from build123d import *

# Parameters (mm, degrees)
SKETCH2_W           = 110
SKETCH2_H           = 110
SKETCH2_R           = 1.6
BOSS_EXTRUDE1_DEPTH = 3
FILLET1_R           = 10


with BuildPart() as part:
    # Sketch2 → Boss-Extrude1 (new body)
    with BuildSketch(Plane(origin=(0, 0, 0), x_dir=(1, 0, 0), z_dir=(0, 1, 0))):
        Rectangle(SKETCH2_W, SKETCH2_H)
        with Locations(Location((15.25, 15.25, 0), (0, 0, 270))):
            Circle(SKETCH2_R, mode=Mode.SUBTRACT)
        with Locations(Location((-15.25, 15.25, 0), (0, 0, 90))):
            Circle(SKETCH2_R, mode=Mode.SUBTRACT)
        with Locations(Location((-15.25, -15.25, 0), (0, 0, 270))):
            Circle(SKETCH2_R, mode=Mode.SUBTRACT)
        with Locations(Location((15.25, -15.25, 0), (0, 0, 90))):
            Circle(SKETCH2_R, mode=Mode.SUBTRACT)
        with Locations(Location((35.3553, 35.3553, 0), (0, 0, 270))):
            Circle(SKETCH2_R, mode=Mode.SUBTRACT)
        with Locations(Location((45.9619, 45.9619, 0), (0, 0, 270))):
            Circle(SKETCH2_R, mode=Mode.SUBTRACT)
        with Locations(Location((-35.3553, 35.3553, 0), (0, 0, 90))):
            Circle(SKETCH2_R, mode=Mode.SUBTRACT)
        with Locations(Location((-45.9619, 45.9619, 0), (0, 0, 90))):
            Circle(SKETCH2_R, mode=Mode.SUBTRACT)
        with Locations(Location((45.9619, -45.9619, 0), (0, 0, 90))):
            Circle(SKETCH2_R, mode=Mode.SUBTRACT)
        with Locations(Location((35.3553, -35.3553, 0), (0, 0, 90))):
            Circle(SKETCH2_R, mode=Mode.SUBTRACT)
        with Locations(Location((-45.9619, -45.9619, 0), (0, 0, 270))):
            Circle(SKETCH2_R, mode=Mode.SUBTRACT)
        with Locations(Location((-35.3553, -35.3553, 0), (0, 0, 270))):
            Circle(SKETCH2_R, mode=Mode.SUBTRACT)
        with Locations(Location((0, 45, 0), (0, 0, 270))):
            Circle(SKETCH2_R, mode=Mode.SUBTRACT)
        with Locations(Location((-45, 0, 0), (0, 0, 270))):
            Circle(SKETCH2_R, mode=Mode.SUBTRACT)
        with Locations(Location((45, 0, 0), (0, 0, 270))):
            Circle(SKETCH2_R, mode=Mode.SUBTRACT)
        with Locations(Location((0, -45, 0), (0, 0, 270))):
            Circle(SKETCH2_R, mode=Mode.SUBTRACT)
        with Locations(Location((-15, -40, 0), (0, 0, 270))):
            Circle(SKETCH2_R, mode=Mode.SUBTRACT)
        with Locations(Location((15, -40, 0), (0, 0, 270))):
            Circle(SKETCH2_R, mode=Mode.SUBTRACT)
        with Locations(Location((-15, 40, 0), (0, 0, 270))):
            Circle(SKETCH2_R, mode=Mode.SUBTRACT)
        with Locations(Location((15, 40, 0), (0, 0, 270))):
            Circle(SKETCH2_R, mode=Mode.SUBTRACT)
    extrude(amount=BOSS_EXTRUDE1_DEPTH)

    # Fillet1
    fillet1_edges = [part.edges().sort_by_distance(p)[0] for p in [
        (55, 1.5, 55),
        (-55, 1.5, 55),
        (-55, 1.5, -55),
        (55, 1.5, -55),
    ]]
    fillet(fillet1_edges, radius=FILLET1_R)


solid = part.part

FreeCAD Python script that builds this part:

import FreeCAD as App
import Part
import Sketcher
from FreeCAD import Vector
Q = App.Units.Quantity


def edges_at(feature, points):
    """Names of the edges that pass closest to the given points."""
    edges = feature.Shape.Edges
    near = lambda p: min(range(len(edges)), key=lambda i: edges[i].distToShape(Part.Vertex(*p))[0])
    return sorted({f"Edge{near(p) + 1}" for p in points})


def add_polygon(sketch, points):
    """Adds a closed chain of lines whose ends are joined by coincident constraints."""
    first, n = sketch.GeometryCount, len(points)
    for a, b in zip(points, points[1:] + points[:1]):
        sketch.addGeometry(Part.LineSegment(App.Vector(*a, 0), App.Vector(*b, 0)), False)
    for i in range(n):
        sketch.addConstraint(Sketcher.Constraint("Coincident", first + i, 2, first + (i + 1) % n, 1))

doc = App.newDocument("Part")
params = doc.addObject("Spreadsheet::Sheet", "Params")
for row, (alias, value) in enumerate([
    ("sketch1_diameter", "3.2 mm"),
    ("sketch1_width", "110 mm"),
    ("pad1_length", "3 mm"),
    ("fillet_radius", "10 mm"),
], start=1):
    params.set(f"A{row}", alias)
    params.set(f"B{row}", "=" + value)
    params.setAlias(f"B{row}", alias)

body = doc.addObject("PartDesign::Body", "Body")

# Sketch on XZ plane
sketch1 = body.newObject("Sketcher::SketchObject", "Sketch")
sketch1.AttachmentSupport = (doc.getObject("XZ_Plane"), [""])
sketch1.MapMode = "FlatFace"
add_polygon(sketch1, [(-55, -55), (-55, 55), (55, 55), (55, -55)])  # lines 0-3
sketch1.addGeometry(Part.Circle(Vector(-46, 46, 0), Vector(0, 0, 1), 1.6), False)  # 4
sketch1.addGeometry(Part.Circle(Vector(-35.4, 35.4, 0), Vector(0, 0, 1), 1.6), False)  # 5
sketch1.addGeometry(Part.Circle(Vector(-15, 40, 0), Vector(0, 0, 1), 1.6), False)  # 6
sketch1.addGeometry(Part.Circle(Vector(-15.2, 15.2, 0), Vector(0, 0, 1), 1.6), False)  # 7
sketch1.addGeometry(Part.Circle(Vector(0, 45, 0), Vector(0, 0, 1), 1.6), False)  # 8
sketch1.addGeometry(Part.Circle(Vector(15, 40, 0), Vector(0, 0, 1), 1.6), False)  # 9
sketch1.addGeometry(Part.Circle(Vector(46, 46, 0), Vector(0, 0, 1), 1.6), False)  # 10
sketch1.addGeometry(Part.Circle(Vector(35.4, 35.4, 0), Vector(0, 0, 1), 1.6), False)  # 11
sketch1.addGeometry(Part.Circle(Vector(15.2, 15.2, 0), Vector(0, 0, 1), 1.6), False)  # 12
sketch1.addGeometry(Part.Circle(Vector(-45, 0, 0), Vector(0, 0, 1), 1.6), False)  # 13
sketch1.addGeometry(Part.Circle(Vector(-15.2, -15.2, 0), Vector(0, 0, 1), 1.6), False)  # 14
sketch1.addGeometry(Part.Circle(Vector(-35.4, -35.4, 0), Vector(0, 0, 1), 1.6), False)  # 15
sketch1.addGeometry(Part.Circle(Vector(-46, -46, 0), Vector(0, 0, 1), 1.6), False)  # 16
sketch1.addGeometry(Part.Circle(Vector(-15, -40, 0), Vector(0, 0, 1), 1.6), False)  # 17
sketch1.addGeometry(Part.Circle(Vector(15.2, -15.2, 0), Vector(0, 0, 1), 1.6), False)  # 18
sketch1.addGeometry(Part.Circle(Vector(45, 0, 0), Vector(0, 0, 1), 1.6), False)  # 19
sketch1.addGeometry(Part.Circle(Vector(0, -45, 0), Vector(0, 0, 1), 1.6), False)  # 20
sketch1.addGeometry(Part.Circle(Vector(15, -40, 0), Vector(0, 0, 1), 1.6), False)  # 21
sketch1.addGeometry(Part.Circle(Vector(35.4, -35.4, 0), Vector(0, 0, 1), 1.6), False)  # 22
sketch1.addGeometry(Part.Circle(Vector(46, -46, 0), Vector(0, 0, 1), 1.6), False)  # 23
sketch1.addConstraint([
    Sketcher.Constraint("Vertical", 0),
    Sketcher.Constraint("Horizontal", 1),
    Sketcher.Constraint("Vertical", 2),
    Sketcher.Constraint("Horizontal", 3),
    Sketcher.Constraint("Equal", 4, 5),
    Sketcher.Constraint("Equal", 5, 6),
    Sketcher.Constraint("Equal", 6, 7),
    Sketcher.Constraint("Equal", 7, 8),
    Sketcher.Constraint("Equal", 8, 9),
    Sketcher.Constraint("Equal", 9, 10),
    Sketcher.Constraint("Equal", 10, 11),
    Sketcher.Constraint("Equal", 11, 12),
    Sketcher.Constraint("Equal", 12, 13),
    Sketcher.Constraint("Equal", 13, 14),
    Sketcher.Constraint("Equal", 14, 15),
    Sketcher.Constraint("Equal", 15, 16),
    Sketcher.Constraint("Equal", 16, 17),
    Sketcher.Constraint("Equal", 17, 18),
    Sketcher.Constraint("Equal", 18, 19),
    Sketcher.Constraint("Equal", 19, 20),
    Sketcher.Constraint("Equal", 20, 21),
    Sketcher.Constraint("Equal", 21, 22),
    Sketcher.Constraint("Equal", 22, 23),
    Sketcher.Constraint("Symmetric", 12, 3, 14, 3, -1, 1),
    Sketcher.Constraint("Symmetric", 11, 3, 15, 3, -1, 1),
    Sketcher.Constraint("Symmetric", 10, 3, 16, 3, -1, 1),
    Sketcher.Constraint("Symmetric", 9, 3, 17, 3, -1, 1),
    Sketcher.Constraint("Symmetric", 7, 3, 18, 3, -1, 1),
    Sketcher.Constraint("Symmetric", 13, 3, 19, 3, -1, 1),
    Sketcher.Constraint("Symmetric", 8, 3, 20, 3, -1, 1),
    Sketcher.Constraint("Symmetric", 6, 3, 21, 3, -1, 1),
    Sketcher.Constraint("Symmetric", 5, 3, 22, 3, -1, 1),
    Sketcher.Constraint("Symmetric", 4, 3, 23, 3, -1, 1),
    Sketcher.Constraint("Symmetric", 0, 2, 2, 2, -1, 1),
    Sketcher.Constraint("Symmetric", 6, 3, 9, 3, -2),
    Sketcher.Constraint("Symmetric", 4, 3, 10, 3, -2),
    Sketcher.Constraint("Symmetric", 5, 3, 11, 3, -2),
    Sketcher.Constraint("Symmetric", 7, 3, 12, 3, -2),
    Sketcher.Constraint("PointOnObject", 8, 3, -2),
    Sketcher.Constraint("PointOnObject", 13, 3, -1),
    Sketcher.Constraint("Equal", 3, 0),
    Sketcher.Constraint("Diameter", 4, Q("3.2 mm")),
    Sketcher.Constraint("DistanceX", 1, 1, 1, 2, Q("110 mm")),
    Sketcher.Constraint("DistanceX", 6, 3, -1, 1, Q("15 mm")),
    Sketcher.Constraint("DistanceY", -1, 1, 6, 3, Q("40 mm")),
    Sketcher.Constraint("DistanceY", -1, 1, 8, 3, Q("45 mm")),
    Sketcher.Constraint("DistanceX", 13, 3, -1, 1, Q("45 mm")),
    Sketcher.Constraint("DistanceX", 7, 3, 12, 3, Q("30.5 mm")),
    Sketcher.Constraint("DistanceY", 14, 3, 7, 3, Q("30.5 mm")),
    Sketcher.Constraint("DistanceX", 4, 3, -1, 1, Q("45.9619 mm")),
    Sketcher.Constraint("DistanceY", -1, 1, 4, 3, Q("45.9619 mm")),
    Sketcher.Constraint("DistanceX", 5, 3, -1, 1, Q("35.3553 mm")),
    Sketcher.Constraint("DistanceY", -1, 1, 5, 3, Q("35.3553 mm")),
])
sketch1.setExpression("Constraints[45]", "Params.sketch1_diameter")
sketch1.setExpression("Constraints[46]", "Params.sketch1_width")
pad1 = body.newObject("PartDesign::Pad", "Pad")
pad1.Profile = sketch1
pad1.setExpression("Length", "Params.pad1_length")
pad1.Reversed = True
doc.recompute()

fillet = body.newObject("PartDesign::Fillet", "Fillet")
fillet.Base = (pad1, edges_at(pad1, [
    (55, 1.5, 55),
    (-55, 1.5, 55),
    (-55, 1.5, -55),
    (55, 1.5, -55),
]))
fillet.setExpression("Radius", "Params.fillet_radius")

doc.recompute()
